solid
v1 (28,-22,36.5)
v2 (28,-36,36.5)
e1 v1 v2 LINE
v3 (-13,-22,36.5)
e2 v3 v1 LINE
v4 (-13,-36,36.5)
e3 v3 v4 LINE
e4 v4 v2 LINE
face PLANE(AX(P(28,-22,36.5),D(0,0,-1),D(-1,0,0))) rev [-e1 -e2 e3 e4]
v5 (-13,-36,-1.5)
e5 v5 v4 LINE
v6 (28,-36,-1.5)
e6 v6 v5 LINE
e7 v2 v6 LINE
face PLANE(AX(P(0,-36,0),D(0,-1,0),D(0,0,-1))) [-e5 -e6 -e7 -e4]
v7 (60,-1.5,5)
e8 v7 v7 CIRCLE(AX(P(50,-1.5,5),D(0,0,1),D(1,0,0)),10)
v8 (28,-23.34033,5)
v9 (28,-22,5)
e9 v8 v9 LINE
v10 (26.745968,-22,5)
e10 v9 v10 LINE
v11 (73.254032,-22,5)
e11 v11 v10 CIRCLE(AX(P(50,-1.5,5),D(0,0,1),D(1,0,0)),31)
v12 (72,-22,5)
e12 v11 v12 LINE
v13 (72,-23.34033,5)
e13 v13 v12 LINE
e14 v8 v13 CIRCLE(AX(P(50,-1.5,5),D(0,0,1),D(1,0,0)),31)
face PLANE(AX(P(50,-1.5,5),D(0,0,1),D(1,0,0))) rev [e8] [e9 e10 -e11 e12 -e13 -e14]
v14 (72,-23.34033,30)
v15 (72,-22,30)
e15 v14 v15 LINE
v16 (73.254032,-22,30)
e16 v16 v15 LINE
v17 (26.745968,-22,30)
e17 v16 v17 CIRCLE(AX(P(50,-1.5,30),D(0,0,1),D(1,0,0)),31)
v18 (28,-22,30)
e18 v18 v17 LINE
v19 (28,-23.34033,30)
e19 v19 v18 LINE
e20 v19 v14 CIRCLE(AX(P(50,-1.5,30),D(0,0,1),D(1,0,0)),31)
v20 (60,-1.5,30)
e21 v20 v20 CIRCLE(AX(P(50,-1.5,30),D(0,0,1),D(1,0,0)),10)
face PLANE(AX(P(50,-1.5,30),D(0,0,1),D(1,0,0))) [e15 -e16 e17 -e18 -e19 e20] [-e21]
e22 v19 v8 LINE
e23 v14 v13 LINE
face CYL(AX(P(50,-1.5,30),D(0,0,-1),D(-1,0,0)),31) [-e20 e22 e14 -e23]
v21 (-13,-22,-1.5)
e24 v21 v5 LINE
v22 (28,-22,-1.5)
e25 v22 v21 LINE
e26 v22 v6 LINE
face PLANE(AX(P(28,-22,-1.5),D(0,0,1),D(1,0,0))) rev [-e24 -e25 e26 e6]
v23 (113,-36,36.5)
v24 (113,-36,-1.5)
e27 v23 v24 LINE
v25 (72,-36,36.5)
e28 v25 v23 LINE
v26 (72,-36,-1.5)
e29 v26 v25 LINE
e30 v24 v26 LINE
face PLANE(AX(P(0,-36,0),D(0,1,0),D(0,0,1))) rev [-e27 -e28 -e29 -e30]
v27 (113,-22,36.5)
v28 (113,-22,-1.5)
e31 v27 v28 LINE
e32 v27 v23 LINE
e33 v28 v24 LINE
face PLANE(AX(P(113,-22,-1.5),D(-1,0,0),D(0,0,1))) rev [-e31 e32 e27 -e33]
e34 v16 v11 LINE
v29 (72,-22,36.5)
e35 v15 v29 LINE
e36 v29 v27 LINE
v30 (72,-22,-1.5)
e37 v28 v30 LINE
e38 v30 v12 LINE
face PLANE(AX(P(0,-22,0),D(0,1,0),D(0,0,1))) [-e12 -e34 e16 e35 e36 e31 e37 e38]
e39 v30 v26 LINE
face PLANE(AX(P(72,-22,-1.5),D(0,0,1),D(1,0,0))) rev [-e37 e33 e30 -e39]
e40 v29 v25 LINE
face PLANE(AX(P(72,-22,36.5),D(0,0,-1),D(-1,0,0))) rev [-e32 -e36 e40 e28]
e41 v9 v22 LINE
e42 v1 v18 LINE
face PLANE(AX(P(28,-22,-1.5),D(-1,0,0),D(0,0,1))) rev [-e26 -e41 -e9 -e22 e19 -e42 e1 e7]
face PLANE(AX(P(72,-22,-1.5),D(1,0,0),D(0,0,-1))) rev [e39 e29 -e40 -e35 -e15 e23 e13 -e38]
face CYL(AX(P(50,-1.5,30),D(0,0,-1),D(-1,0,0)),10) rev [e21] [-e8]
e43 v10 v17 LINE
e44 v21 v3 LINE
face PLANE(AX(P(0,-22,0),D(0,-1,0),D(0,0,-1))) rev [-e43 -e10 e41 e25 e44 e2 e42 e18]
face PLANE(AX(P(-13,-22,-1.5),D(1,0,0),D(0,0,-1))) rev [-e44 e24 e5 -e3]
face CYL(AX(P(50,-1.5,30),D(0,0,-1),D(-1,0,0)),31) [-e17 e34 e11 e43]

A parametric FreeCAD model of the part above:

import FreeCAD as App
import Part
import Sketcher
from FreeCAD import Vector


def add_polygon(sketch, points):
    """Adds a closed chain of lines whose ends are joined by coincident constraints."""
    first, n = sketch.GeometryCount, len(points)
    for a, b in zip(points, points[1:] + points[:1]):
        sketch.addGeometry(Part.LineSegment(App.Vector(*a, 0), App.Vector(*b, 0)), False)
    for i in range(n):
        sketch.addConstraint(Sketcher.Constraint("Coincident", first + i, 2, first + (i + 1) % n, 1))

doc = App.newDocument("Part")
body = doc.addObject("PartDesign::Body", "Body")

sketch1 = body.newObject("Sketcher::SketchObject", "Sketch")
sketch1.AttachmentSupport = (doc.getObject("XZ_Plane"), [""])
sketch1.MapMode = "FlatFace"
sketch1.AttachmentOffset = App.Placement(Vector(0, 0, 36), App.Rotation())
add_polygon(sketch1, [(28, 36), (28, -2), (-13, -2), (-13, 36)])
sketch1.addConstraint([
    Sketcher.Constraint("Vertical", 0),
    Sketcher.Constraint("Horizontal", 1),
    Sketcher.Constraint("Vertical", 2),
    Sketcher.Constraint("Horizontal", 3),
    Sketcher.Constraint("DistanceX", 1, 2, 1, 1, 41.0),
    Sketcher.Constraint("DistanceY", 0, 2, 0, 1, 38.0),
    Sketcher.Constraint("DistanceX", -1, 1, 0, 2, 28.0),
    Sketcher.Constraint("DistanceY", 0, 2, -1, 1, 1.5),
])
pad1 = body.newObject("PartDesign::Pad", "Pad")
pad1.Profile = sketch1
pad1.Length = 14
pad1.Reversed = True
body2 = doc.addObject("PartDesign::Body", "Body001")

sketch2 = body2.newObject("Sketcher::SketchObject", "Sketch001")
sketch2.AttachmentSupport = (doc.getObject("XZ_Plane001"), [""])
sketch2.MapMode = "FlatFace"
sketch2.AttachmentOffset = App.Placement(Vector(0, 0, 36), App.Rotation())
add_polygon(sketch2, [(113, 36), (113, -2), (72, -2), (72, 36)])
sketch2.addConstraint([
    Sketcher.Constraint("Vertical", 0),
    Sketcher.Constraint("Horizontal", 1),
    Sketcher.Constraint("Vertical", 2),
    Sketcher.Constraint("Horizontal", 3),
    Sketcher.Constraint("DistanceX", 1, 2, 1, 1, 41.0),
    Sketcher.Constraint("DistanceY", 0, 2, 0, 1, 38.0),
    Sketcher.Constraint("DistanceX", -1, 1, 0, 2, 113.0),
    Sketcher.Constraint("DistanceY", 0, 2, -1, 1, 1.5),
])
pad2 = body2.newObject("PartDesign::Pad", "Pad001")
pad2.Profile = sketch2
pad2.Length = 14
pad2.Reversed = True
body.AllowCompound = True
doc.recompute()

boolean = body.newObject("PartDesign::Boolean", "Boolean")
boolean.Type = "Fuse"
boolean.addObjects([body2])

sketch3 = body.newObject("Sketcher::SketchObject", "Sketch002")
sketch3.AttachmentSupport = (doc.getObject("XY_Plane"), [""])
sketch3.MapMode = "FlatFace"
sketch3.AttachmentOffset = App.Placement(Vector(0, 0, 5), App.Rotation())
sketch3.addGeometry([
    Part.Circle(Vector(50, -2, 0), Vector(0, 0, 1), 31),
    Part.Circle(Vector(50, -2, 0), Vector(0, 0, 1), 10),
], False)
sketch3.addConstraint([
    Sketcher.Constraint("Coincident", 1, 3, 0, 3),
    Sketcher.Constraint("Diameter", 0, 62.0),
    Sketcher.Constraint("Diameter", 1, 20.0),
    Sketcher.Constraint("DistanceX", -1, 1, 0, 3, 50.0),
    Sketcher.Constraint("DistanceY", 0, 3, -1, 1, 1.5),
])
pad3 = body.newObject("PartDesign::Pad", "Pad002")
pad3.Profile = sketch3
pad3.Length = 25

doc.recompute()
